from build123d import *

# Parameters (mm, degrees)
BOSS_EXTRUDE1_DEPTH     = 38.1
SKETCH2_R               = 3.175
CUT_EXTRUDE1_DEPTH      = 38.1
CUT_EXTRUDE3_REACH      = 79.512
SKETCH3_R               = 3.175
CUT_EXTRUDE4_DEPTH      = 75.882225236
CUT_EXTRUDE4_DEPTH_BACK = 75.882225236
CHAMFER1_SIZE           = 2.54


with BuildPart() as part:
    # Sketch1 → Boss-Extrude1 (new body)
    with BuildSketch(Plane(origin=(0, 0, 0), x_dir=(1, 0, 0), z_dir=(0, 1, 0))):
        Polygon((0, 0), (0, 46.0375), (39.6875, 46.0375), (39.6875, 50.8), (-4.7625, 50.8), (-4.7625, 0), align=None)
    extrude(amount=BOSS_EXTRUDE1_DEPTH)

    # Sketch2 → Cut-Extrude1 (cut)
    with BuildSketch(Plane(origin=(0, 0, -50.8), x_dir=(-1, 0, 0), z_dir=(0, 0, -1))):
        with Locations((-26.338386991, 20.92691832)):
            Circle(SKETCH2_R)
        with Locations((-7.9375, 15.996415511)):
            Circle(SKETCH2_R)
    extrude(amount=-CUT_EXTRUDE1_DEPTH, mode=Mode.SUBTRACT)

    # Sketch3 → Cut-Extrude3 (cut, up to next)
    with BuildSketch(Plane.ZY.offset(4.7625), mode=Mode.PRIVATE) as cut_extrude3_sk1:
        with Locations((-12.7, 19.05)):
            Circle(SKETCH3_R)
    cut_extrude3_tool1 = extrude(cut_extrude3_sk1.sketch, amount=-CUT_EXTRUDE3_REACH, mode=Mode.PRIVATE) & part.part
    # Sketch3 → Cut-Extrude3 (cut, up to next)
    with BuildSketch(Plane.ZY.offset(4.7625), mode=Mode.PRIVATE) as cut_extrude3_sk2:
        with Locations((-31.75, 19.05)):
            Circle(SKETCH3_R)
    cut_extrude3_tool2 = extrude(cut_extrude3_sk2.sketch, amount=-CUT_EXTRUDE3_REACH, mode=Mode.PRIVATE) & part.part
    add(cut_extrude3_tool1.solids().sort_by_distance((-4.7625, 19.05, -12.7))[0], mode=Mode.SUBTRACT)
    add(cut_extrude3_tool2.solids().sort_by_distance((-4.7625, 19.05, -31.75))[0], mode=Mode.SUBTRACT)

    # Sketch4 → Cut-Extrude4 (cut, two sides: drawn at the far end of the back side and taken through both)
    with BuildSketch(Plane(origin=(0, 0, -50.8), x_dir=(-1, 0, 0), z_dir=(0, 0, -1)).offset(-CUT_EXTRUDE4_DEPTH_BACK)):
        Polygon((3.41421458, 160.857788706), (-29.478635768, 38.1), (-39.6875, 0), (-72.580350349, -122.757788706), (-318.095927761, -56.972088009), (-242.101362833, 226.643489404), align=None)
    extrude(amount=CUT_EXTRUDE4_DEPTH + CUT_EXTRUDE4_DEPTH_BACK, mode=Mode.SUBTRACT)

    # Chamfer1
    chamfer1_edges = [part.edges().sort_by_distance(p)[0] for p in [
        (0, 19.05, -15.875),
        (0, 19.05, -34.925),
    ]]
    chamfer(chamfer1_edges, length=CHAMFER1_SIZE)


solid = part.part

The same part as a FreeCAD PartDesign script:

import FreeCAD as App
import Part
import Sketcher
Q = App.Units.Quantity


def edges_at(feature, points):
    """Names of the edges that pass closest to the given points."""
    edges = feature.Shape.Edges
    near = lambda p: min(range(len(edges)), key=lambda i: edges[i].distToShape(Part.Vertex(*p))[0])
    return sorted({f"Edge{near(p) + 1}" for p in points})


def add_polygon(sketch, points):
    """Adds a closed chain of lines whose ends are joined by coincident constraints."""
    first, n = sketch.GeometryCount, len(points)
    for a, b in zip(points, points[1:] + points[:1]):
        sketch.addGeometry(Part.LineSegment(App.Vector(*a, 0), App.Vector(*b, 0)), False)
    for i in range(n):
        sketch.addConstraint(Sketcher.Constraint("Coincident", first + i, 2, first + (i + 1) % n, 1))

doc = App.newDocument("Part")
body = doc.addObject("PartDesign::Body", "Body")

sketch1 = doc.addObject("Sketcher::SketchObject", "Sketch")
body.addObject(sketch1)
sketch1.AttachmentSupport = (doc.XZ_Plane, [""])
sketch1.MapMode = "FlatFace"
add_polygon(sketch1, [(0, 0), (0, -46.0375), (39.6875, -46.0375), (39.6875, -50.8), (-4.7625, -50.8), (-4.7625, 0)])
sketch1.addConstraint(Sketcher.Constraint("Vertical", 0))
sketch1.addConstraint(Sketcher.Constraint("Horizontal", 1))
sketch1.addConstraint(Sketcher.Constraint("Vertical", 2))
sketch1.addConstraint(Sketcher.Constraint("Horizontal", 3))
sketch1.addConstraint(Sketcher.Constraint("Vertical", 4))
sketch1.addConstraint(Sketcher.Constraint("Horizontal", 5))
sketch1.addConstraint(Sketcher.Constraint("Coincident", 5, 2, -1, 1))
sketch1.addConstraint(Sketcher.Constraint("Equal", 5, 2))
sketch1.addConstraint(Sketcher.Constraint("DistanceY", 4, 1, 4, 2, Q("2 in")))
sketch1.addConstraint(Sketcher.Constraint("DistanceX", 3, 2, 3, 1, Q("1.75 in")))
sketch1.addConstraint(Sketcher.Constraint("DistanceX", 1, 1, 1, 2, Q("1.5625 in")))
pad1 = doc.addObject("PartDesign::Pad", "Pad")
body.addObject(pad1)
pad1.Profile = sketch1
pad1.Length = Q("1.5 in")
pad1.Reversed = True

sketch2 = doc.addObject("Sketcher::SketchObject", "Sketch001")
body.addObject(sketch2)
sketch2.AttachmentSupport = (doc.XY_Plane, [""])
sketch2.MapMode = "FlatFace"
sketch2.AttachmentOffset = App.Placement(App.Vector(0, 0, -2 * 25.4), App.Rotation())
sketch2.addGeometry(Part.Circle(App.Vector(26.338387, 20.926918, 0), App.Vector(0, 0, 1), 3.175), False)
sketch2.addGeometry(Part.Circle(App.Vector(7.9375, 15.996416, 0), App.Vector(0, 0, 1), 3.175), False)
sketch2.addConstraint(Sketcher.Constraint("Equal", 0, 1))
sketch2.addConstraint(Sketcher.Constraint("Diameter", 0, Q("0.25 in")))
sketch2.addConstraint(Sketcher.Constraint("DistanceX", -1, 1, 1, 3, Q("0.3125 in")))
sketch2.addConstraint(Sketcher.Constraint("DistanceY", -1, 1, 0, 3, Q("20.926918 mm")))
sketch2.addConstraint(Sketcher.Constraint("DistanceX", -1, 1, 0, 3, Q("26.338387 mm")))
sketch2.addConstraint(Sketcher.Constraint("DistanceY", -1, 1, 1, 3, Q("15.996416 mm")))
pocket1 = doc.addObject("PartDesign::Pocket", "Pocket")
body.addObject(pocket1)
pocket1.Profile = sketch2
pocket1.Length = Q("1.5 in")
pocket1.Reversed = True

sketch3 = doc.addObject("Sketcher::SketchObject", "Sketch002")
body.addObject(sketch3)
sketch3.AttachmentSupport = (doc.YZ_Plane, [""])
sketch3.MapMode = "FlatFace"
sketch3.AttachmentOffset = App.Placement(App.Vector(0, 0, -0.1875 * 25.4), App.Rotation())
sketch3.addGeometry(Part.Circle(App.Vector(19.05, -12.7, 0), App.Vector(0, 0, 1), 3.175), False)
sketch3.addConstraint(Sketcher.Constraint("Diameter", 0, Q("0.25 in")))
sketch3.addConstraint(Sketcher.Constraint("DistanceY", 0, 3, -1, 1, Q("0.5 in")))
sketch3.addConstraint(Sketcher.Constraint("DistanceX", -1, 1, 0, 3, Q("0.75 in")))
pocket2 = doc.addObject("PartDesign::Pocket", "Pocket001")
body.addObject(pocket2)
pocket2.Profile = sketch3
pocket2.Type = "UpToFirst"
pocket2.Reversed = True

sketch4 = doc.addObject("Sketcher::SketchObject", "Sketch003")
body.addObject(sketch4)
sketch4.AttachmentSupport = (doc.YZ_Plane, [""])
sketch4.MapMode = "FlatFace"
sketch4.AttachmentOffset = App.Placement(App.Vector(0, 0, -0.1875 * 25.4), App.Rotation())
sketch4.addGeometry(Part.Circle(App.Vector(19.05, -31.75, 0), App.Vector(0, 0, 1), 3.175), False)
sketch4.addConstraint(Sketcher.Constraint("Diameter", 0, Q("0.25 in")))
sketch4.addConstraint(Sketcher.Constraint("DistanceX", -1, 1, 0, 3, Q("0.75 in")))
sketch4.addConstraint(Sketcher.Constraint("DistanceY", 0, 3, -1, 1, Q("1.25 in")))
pocket3 = doc.addObject("PartDesign::Pocket", "Pocket002")
body.addObject(pocket3)
pocket3.Profile = sketch4
pocket3.Type = "UpToFirst"
pocket3.Reversed = True

sketch5 = doc.addObject("Sketcher::SketchObject", "Sketch004")
body.addObject(sketch5)
sketch5.AttachmentSupport = (doc.XY_Plane, [""])
sketch5.MapMode = "FlatFace"
sketch5.AttachmentOffset = App.Placement(App.Vector(0, 0, -2 * 25.4), App.Rotation())
add_polygon(sketch5, [(29.478636, 38.1), (-3.414215, 160.857789), (242.101363, 226.643489), (318.095928, -56.972088), (72.58035, -122.757789), (39.6875, 0)])
sketch5.addConstraint(Sketcher.Constraint("PointOnObject", 4, 2, -1))
sketch5.addConstraint(Sketcher.Constraint("Perpendicular", 0, 1))
sketch5.addConstraint(Sketcher.Constraint("Perpendicular", 1, 2))
sketch5.addConstraint(Sketcher.Constraint("Perpendicular", 2, 3))
sketch5.addConstraint(Sketcher.Constraint("Perpendicular", 3, 4))
sketch5.addConstraint(Sketcher.Constraint("Parallel", 4, 5))
sketch5.addConstraint(Sketcher.Constraint("Equal", 0, 4))
sketch5.addConstraint(Sketcher.Constraint("Angle", 0, Q("105 deg")))
sketch5.addConstraint(Sketcher.Constraint("DistanceY", -1, 1, 5, 2, Q("1.5 in")))
sketch5.addConstraint(Sketcher.Constraint("DistanceX", -1, 1, 4, 2, Q("1.5625 in")))
sketch5.addConstraint(Sketcher.Constraint("DistanceY", 0, 2, 1, 2, Q("65.785701 mm")))
sketch5.addConstraint(Sketcher.Constraint("Distance", 2, Q("293.620452 mm")))
pocket4 = doc.addObject("PartDesign::Pocket", "Pocket003")
body.addObject(pocket4)
pocket4.Profile = sketch5
pocket4.Type = "ThroughAll"
pocket4.Midplane = True
doc.recompute()

chamfer = doc.addObject("PartDesign::Chamfer", "Chamfer")
body.addObject(chamfer)
chamfer.Base = (pocket4, edges_at(pocket4, [(0, 19.05, -15.875), (0, 19.05, -34.925)]))
chamfer.Size = Q("0.1 in")

doc.recompute()
